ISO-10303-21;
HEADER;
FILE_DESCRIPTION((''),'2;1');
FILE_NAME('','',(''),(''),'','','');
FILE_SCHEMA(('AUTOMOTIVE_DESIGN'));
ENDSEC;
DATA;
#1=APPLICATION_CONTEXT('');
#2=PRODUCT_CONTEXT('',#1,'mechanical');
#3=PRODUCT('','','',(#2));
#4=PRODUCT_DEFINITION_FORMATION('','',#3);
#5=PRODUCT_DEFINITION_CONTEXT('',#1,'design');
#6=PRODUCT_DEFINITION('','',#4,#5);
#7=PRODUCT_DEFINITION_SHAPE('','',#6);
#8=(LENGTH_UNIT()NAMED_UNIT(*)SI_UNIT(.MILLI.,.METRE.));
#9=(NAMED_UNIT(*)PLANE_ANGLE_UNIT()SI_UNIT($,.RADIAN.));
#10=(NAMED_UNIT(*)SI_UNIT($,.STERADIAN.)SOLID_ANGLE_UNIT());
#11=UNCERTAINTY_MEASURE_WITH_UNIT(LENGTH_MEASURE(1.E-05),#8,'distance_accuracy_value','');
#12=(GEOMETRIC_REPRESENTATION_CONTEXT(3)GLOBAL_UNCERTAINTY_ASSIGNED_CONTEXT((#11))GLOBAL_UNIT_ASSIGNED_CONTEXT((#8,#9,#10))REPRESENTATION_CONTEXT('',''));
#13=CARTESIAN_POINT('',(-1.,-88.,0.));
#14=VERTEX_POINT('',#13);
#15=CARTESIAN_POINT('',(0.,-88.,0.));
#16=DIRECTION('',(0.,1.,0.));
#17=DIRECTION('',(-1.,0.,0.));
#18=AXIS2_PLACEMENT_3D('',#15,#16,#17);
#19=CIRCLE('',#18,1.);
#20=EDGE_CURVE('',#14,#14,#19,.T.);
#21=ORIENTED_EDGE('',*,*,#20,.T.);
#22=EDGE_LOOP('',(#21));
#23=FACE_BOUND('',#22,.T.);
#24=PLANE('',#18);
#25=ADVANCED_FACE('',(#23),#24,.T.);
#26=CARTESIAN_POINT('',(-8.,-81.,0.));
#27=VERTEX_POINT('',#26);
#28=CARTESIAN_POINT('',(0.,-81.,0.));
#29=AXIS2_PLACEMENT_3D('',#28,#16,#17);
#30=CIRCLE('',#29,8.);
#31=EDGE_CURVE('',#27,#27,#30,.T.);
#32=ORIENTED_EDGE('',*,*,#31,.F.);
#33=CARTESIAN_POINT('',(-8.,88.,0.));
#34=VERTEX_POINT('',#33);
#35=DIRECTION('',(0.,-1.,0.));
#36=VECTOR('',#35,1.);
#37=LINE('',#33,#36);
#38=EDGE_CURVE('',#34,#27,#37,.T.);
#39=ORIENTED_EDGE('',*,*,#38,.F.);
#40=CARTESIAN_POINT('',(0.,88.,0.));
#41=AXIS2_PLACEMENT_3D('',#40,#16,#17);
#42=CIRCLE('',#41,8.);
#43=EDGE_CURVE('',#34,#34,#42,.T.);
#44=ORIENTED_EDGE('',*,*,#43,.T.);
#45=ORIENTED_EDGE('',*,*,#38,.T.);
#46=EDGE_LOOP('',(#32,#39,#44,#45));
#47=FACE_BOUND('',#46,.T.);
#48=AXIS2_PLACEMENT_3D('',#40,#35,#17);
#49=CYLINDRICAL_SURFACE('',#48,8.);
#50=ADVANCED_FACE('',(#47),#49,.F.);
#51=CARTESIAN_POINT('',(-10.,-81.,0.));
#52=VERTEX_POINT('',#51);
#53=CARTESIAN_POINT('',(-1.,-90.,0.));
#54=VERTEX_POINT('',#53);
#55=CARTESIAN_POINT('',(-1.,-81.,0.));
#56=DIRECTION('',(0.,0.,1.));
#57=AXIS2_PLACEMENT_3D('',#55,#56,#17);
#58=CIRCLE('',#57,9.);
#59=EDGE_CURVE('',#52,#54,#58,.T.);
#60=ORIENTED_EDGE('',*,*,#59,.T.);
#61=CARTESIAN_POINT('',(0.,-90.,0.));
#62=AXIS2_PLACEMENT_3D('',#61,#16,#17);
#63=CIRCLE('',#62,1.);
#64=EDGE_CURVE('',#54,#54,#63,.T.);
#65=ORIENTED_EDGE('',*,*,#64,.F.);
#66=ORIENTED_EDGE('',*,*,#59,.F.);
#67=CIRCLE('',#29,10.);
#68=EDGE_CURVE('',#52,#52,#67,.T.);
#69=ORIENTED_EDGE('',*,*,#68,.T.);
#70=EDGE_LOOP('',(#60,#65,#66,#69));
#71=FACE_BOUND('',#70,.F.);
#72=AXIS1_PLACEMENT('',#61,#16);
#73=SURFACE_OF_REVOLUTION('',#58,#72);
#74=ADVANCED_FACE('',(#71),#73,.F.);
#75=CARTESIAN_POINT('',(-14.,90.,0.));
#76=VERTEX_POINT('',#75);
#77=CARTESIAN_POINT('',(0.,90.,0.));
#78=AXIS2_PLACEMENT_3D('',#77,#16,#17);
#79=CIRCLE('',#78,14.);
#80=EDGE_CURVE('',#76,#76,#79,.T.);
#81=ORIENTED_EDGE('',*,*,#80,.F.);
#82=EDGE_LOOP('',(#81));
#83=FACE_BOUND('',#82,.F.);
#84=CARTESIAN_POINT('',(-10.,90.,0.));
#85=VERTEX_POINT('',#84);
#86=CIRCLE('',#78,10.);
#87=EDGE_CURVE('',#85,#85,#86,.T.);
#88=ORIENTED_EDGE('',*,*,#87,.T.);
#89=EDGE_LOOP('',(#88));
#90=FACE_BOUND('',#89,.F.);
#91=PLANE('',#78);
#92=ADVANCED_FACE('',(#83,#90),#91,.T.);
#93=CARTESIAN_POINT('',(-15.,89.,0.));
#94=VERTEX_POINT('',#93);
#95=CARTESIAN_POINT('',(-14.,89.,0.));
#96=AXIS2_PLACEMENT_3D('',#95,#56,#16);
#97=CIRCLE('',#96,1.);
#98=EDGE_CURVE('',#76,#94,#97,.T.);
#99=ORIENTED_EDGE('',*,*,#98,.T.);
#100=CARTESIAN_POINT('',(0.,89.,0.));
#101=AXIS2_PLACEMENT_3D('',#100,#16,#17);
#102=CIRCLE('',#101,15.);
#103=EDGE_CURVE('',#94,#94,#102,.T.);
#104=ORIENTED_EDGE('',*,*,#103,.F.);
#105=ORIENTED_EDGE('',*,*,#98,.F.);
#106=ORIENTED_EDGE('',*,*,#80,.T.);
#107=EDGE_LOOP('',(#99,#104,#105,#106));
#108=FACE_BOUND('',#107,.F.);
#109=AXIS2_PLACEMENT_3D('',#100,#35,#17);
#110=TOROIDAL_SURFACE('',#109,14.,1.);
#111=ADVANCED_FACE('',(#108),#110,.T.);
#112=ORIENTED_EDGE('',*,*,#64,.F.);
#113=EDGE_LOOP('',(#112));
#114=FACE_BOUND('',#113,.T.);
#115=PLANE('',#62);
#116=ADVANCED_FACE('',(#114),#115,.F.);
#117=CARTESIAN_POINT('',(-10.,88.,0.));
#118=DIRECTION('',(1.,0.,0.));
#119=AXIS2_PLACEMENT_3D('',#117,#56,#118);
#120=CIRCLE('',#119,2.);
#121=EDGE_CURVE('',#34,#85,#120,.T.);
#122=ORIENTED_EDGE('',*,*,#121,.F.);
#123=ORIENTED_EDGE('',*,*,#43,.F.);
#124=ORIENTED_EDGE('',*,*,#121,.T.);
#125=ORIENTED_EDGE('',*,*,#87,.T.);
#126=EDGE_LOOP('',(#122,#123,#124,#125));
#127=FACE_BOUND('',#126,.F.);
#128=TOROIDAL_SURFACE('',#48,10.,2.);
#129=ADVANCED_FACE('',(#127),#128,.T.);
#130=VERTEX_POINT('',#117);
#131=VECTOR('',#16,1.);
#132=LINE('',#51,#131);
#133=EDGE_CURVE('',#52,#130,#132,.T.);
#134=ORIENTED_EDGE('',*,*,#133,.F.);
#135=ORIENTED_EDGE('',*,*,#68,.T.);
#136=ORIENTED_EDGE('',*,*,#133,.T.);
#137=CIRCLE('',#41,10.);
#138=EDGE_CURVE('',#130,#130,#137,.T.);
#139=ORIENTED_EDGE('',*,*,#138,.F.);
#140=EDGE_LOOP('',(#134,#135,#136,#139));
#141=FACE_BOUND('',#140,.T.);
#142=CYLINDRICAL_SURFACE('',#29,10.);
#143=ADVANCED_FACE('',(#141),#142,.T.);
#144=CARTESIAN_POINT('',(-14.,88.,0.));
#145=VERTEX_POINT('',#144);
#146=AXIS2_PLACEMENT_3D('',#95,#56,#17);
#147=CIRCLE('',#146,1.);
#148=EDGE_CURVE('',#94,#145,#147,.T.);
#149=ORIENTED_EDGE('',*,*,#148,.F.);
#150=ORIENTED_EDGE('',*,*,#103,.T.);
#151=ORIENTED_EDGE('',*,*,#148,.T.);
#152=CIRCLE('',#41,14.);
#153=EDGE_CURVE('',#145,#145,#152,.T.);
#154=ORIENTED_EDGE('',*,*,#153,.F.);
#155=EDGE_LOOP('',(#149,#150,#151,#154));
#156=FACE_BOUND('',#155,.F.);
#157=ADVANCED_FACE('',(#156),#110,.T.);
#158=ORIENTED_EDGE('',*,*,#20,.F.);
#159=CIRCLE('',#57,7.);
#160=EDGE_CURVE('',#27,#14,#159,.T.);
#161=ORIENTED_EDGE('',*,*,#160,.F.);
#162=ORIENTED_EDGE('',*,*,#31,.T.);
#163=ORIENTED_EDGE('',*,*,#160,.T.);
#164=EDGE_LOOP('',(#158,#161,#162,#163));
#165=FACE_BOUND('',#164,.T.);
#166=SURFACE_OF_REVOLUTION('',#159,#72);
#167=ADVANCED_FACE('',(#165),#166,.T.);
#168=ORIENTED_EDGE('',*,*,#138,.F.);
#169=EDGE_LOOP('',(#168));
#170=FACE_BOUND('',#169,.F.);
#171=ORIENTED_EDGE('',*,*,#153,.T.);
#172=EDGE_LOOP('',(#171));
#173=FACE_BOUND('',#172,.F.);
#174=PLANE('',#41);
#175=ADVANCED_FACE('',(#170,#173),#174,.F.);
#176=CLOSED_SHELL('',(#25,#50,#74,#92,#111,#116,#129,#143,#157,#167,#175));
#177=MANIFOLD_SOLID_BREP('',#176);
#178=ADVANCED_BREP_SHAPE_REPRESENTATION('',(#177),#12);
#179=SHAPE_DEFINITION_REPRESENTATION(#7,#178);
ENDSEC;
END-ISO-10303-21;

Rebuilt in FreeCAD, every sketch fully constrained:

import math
import FreeCAD as App
import Part
import Sketcher

V = App.Vector
Q = App.Units.Quantity

doc = App.newDocument("Part")
body = doc.addObject("PartDesign::Body", "Body")

# Sketch on XY plane
sketch1 = body.newObject("Sketcher::SketchObject", "Sketch")
sketch1.AttachmentSupport = (doc.getObject("XY_Plane"), [""])
sketch1.MapMode = "FlatFace"
sketch1.addGeometry(Part.LineSegment(V(-1, -90, 0), V(0, -90, 0)), False)
sketch1.addGeometry(Part.LineSegment(V(0, -90, 0), V(0, -88, 0)), False)
sketch1.addGeometry(Part.LineSegment(V(0, -88, 0), V(-1, -88, 0)), False)
sketch1.addGeometry(Part.ArcOfCircle(Part.Circle(V(-1, -81, 0), V(0, 0, 1), 7), math.radians(180), math.radians(270)), False)
sketch1.addGeometry(Part.LineSegment(V(-8, -81, 0), V(-8, 88, 0)), False)
sketch1.addGeometry(Part.ArcOfCircle(Part.Circle(V(-10, 88, 0), V(0, 0, 1), 2), math.radians(0), math.radians(90)), False)
sketch1.addGeometry(Part.LineSegment(V(-10, 90, 0), V(-14, 90, 0)), False)
sketch1.addGeometry(Part.ArcOfCircle(Part.Circle(V(-14, 89, 0), V(0, 0, 1), 1), math.radians(90), math.radians(270)), False)
sketch1.addGeometry(Part.LineSegment(V(-14, 88, 0), V(-10, 88, 0)), False)
sketch1.addGeometry(Part.LineSegment(V(-10, 88, 0), V(-10, -81, 0)), False)
sketch1.addGeometry(Part.ArcOfCircle(Part.Circle(V(-1, -81, 0), V(0, 0, 1), 9), math.radians(180), math.radians(270)), False)
sketch1.addConstraint(Sketcher.Constraint("Coincident", 0, 2, 1, 1))
sketch1.addConstraint(Sketcher.Constraint("Coincident", 1, 2, 2, 1))
sketch1.addConstraint(Sketcher.Constraint("Tangent", 2, 2, 3, 2))
sketch1.addConstraint(Sketcher.Constraint("Tangent", 3, 1, 4, 1))
sketch1.addConstraint(Sketcher.Constraint("Tangent", 4, 2, 5, 1))
sketch1.addConstraint(Sketcher.Constraint("Tangent", 5, 2, 6, 1))
sketch1.addConstraint(Sketcher.Constraint("Tangent", 6, 2, 7, 1))
sketch1.addConstraint(Sketcher.Constraint("Tangent", 7, 2, 8, 1))
sketch1.addConstraint(Sketcher.Constraint("Coincident", 8, 2, 9, 1))
sketch1.addConstraint(Sketcher.Constraint("Tangent", 9, 2, 10, 1))
sketch1.addConstraint(Sketcher.Constraint("Tangent", 10, 2, 0, 1))
sketch1.addConstraint(Sketcher.Constraint("Horizontal", 0))
sketch1.addConstraint(Sketcher.Constraint("Vertical", 1))
sketch1.addConstraint(Sketcher.Constraint("Horizontal", 2))
sketch1.addConstraint(Sketcher.Constraint("Vertical", 4))
sketch1.addConstraint(Sketcher.Constraint("Horizontal", 6))
sketch1.addConstraint(Sketcher.Constraint("Horizontal", 8))
sketch1.addConstraint(Sketcher.Constraint("Vertical", 9))
sketch1.addConstraint(Sketcher.Constraint("Coincident", 10, 3, 3, 3))
sketch1.addConstraint(Sketcher.Constraint("Coincident", 8, 2, 5, 3))
sketch1.addConstraint(Sketcher.Constraint("PointOnObject", 0, 2, -2))
sketch1.addConstraint(Sketcher.Constraint("Radius", 5, Q("2 mm")))
sketch1.addConstraint(Sketcher.Constraint("Radius", 10, Q("9 mm")))
sketch1.addConstraint(Sketcher.Constraint("DistanceX", 0, 1, 0, 2, Q("1 mm")))
sketch1.addConstraint(Sketcher.Constraint("DistanceX", 6, 2, 6, 1, Q("4 mm")))
sketch1.addConstraint(Sketcher.Constraint("DistanceY", 4, 1, 4, 2, Q("169 mm")))
sketch1.addConstraint(Sketcher.Constraint("DistanceY", 3, 3, -1, 1, Q("81 mm")))
revolution = body.newObject("PartDesign::Revolution", "Revolution")
revolution.Profile = sketch1
revolution.ReferenceAxis = (sketch1, ["V_Axis"])
revolution.Angle = 360

doc.recompute()
